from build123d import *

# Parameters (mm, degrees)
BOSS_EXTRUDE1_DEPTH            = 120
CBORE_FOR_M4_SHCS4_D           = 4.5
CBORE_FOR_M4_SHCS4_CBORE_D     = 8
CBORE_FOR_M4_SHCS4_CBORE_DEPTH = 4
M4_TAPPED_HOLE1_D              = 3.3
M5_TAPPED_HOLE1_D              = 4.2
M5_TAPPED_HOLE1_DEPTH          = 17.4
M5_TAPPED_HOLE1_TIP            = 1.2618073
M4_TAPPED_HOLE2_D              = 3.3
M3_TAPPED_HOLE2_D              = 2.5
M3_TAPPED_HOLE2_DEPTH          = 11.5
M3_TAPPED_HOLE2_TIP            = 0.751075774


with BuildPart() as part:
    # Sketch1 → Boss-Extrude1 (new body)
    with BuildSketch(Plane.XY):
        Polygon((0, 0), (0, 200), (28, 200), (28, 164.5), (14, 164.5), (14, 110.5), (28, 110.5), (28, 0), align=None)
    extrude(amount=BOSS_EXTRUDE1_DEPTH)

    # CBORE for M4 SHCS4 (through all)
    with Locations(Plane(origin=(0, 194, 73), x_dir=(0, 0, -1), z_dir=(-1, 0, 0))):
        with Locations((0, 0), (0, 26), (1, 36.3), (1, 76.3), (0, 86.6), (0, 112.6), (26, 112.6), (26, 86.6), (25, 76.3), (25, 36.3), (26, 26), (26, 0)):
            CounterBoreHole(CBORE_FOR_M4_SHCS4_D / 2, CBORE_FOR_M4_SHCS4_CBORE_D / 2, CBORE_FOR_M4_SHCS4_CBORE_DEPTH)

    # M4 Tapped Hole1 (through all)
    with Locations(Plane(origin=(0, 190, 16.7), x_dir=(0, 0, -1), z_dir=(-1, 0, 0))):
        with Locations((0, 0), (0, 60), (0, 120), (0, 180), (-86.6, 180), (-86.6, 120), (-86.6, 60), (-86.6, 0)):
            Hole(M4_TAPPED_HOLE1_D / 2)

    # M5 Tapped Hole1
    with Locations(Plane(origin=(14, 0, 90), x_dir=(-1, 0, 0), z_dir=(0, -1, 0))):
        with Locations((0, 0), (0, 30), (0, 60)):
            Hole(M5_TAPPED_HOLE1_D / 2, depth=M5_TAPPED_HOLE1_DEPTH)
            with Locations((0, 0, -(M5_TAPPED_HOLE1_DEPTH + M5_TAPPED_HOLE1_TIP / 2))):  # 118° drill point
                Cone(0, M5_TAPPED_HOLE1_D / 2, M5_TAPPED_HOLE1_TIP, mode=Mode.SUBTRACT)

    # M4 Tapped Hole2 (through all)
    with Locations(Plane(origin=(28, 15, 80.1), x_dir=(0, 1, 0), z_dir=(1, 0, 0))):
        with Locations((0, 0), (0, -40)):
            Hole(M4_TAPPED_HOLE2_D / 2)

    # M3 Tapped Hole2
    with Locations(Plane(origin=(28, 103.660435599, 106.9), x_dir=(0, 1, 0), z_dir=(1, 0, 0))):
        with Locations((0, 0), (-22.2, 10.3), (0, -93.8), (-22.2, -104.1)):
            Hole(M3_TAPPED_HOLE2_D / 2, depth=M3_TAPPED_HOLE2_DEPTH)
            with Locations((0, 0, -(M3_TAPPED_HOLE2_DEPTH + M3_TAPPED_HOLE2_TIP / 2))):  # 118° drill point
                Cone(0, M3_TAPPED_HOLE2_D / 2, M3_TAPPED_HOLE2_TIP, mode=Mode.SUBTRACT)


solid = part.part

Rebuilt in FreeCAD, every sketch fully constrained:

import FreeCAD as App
import Part
import Sketcher
from FreeCAD import Vector


def add_polygon(sketch, points):
    """Adds a closed chain of lines whose ends are joined by coincident constraints."""
    first, n = sketch.GeometryCount, len(points)
    for a, b in zip(points, points[1:] + points[:1]):
        sketch.addGeometry(Part.LineSegment(App.Vector(*a, 0), App.Vector(*b, 0)), False)
    for i in range(n):
        sketch.addConstraint(Sketcher.Constraint("Coincident", first + i, 2, first + (i + 1) % n, 1))

doc = App.newDocument("Part")
params = doc.addObject("Spreadsheet::Sheet", "Params")
for row, (alias, value) in enumerate([
    ("sketch1_width", "28 mm"),
    ("sketch1_width2", "14 mm"),
    ("sketch1_height", "200 mm"),
    ("sketch1_height2", "54 mm"),
    ("sketch1_height3", "110.5 mm"),
    ("pad1_length", "120 mm"),
    ("sketch2_diameter", "4.5 mm"),
    ("hole_diameter", "4.5 mm"),
    ("hole_cbore_diameter", "8 mm"),
    ("hole_cbore_depth", "4 mm"),
    ("sketch3_diameter", "3.3 mm"),
    ("hole2_diameter", "3.3 mm"),
    ("sketch4_diameter", "4.2 mm"),
    ("hole3_diameter", "4.2 mm"),
    ("hole3_depth", "17.4 mm"),
    ("sketch5_diameter", "3.3 mm"),
    ("hole4_diameter", "3.3 mm"),
    ("sketch6_diameter", "2.5 mm"),
    ("hole5_diameter", "2.5 mm"),
    ("hole5_depth", "11.5 mm"),
], start=1):
    params.set(f"A{row}", alias)
    params.set(f"B{row}", "=" + value)
    params.setAlias(f"B{row}", alias)

body = doc.addObject("PartDesign::Body", "Body")

# Sketch on XY plane
sketch1 = body.newObject("Sketcher::SketchObject", "Sketch")
sketch1.AttachmentSupport = (doc.getObject("XY_Plane"), [""])
sketch1.MapMode = "FlatFace"
add_polygon(sketch1, [(0, 200), (0, 0), (28, 0), (28, 110), (14, 110), (14, 164), (28, 164), (28, 200)])  # lines 0-7
sketch1.addConstraint([
    Sketcher.Constraint("Vertical", 0),
    Sketcher.Constraint("Horizontal", 1),
    Sketcher.Constraint("Vertical", 2),
    Sketcher.Constraint("Horizontal", 3),
    Sketcher.Constraint("Vertical", 4),
    Sketcher.Constraint("Horizontal", 5),
    Sketcher.Constraint("Vertical", 6),
    Sketcher.Constraint("Horizontal", 7),
    Sketcher.Constraint("Coincident", 0, 2, -1, 1),
    Sketcher.Constraint("Vertical", 2, 2, 5, 2),
    Sketcher.Constraint("DistanceX", 1, 1, 1, 2, 28.0),
    Sketcher.Constraint("DistanceX", 3, 2, 3, 1, 14.0),
    Sketcher.Constraint("DistanceY", 0, 2, 0, 1, 200.0),
    Sketcher.Constraint("DistanceY", 4, 1, 4, 2, 54.0),
    Sketcher.Constraint("DistanceY", 2, 1, 2, 2, 110.5),
])
sketch1.setExpression("Constraints[18]", "Params.sketch1_width")
sketch1.setExpression("Constraints[19]", "Params.sketch1_width2")
sketch1.setExpression("Constraints[20]", "Params.sketch1_height")
sketch1.setExpression("Constraints[21]", "Params.sketch1_height2")
sketch1.setExpression("Constraints[22]", "Params.sketch1_height3")
pad1 = body.newObject("PartDesign::Pad", "Pad")
pad1.Profile = sketch1
pad1.setExpression("Length", "Params.pad1_length")

# Sketch on YZ plane
sketch2 = body.newObject("Sketcher::SketchObject", "Sketch001")
sketch2.AttachmentSupport = (doc.getObject("YZ_Plane"), [""])
sketch2.MapMode = "FlatFace"
sketch2.addGeometry([
    Part.Circle(Vector(194, 73, 0), Vector(0, 0, 1), 2.2),  # 0
    Part.Circle(Vector(168, 73, 0), Vector(0, 0, 1), 2.2),  # 1
    Part.Circle(Vector(157.7, 72, 0), Vector(0, 0, 1), 2.2),  # 2
    Part.Circle(Vector(117.7, 72, 0), Vector(0, 0, 1), 2.2),  # 3
    Part.Circle(Vector(107.4, 73, 0), Vector(0, 0, 1), 2.2),  # 4
    Part.Circle(Vector(81.4, 73, 0), Vector(0, 0, 1), 2.2),  # 5
    Part.Circle(Vector(81.4, 47, 0), Vector(0, 0, 1), 2.2),  # 6
    Part.Circle(Vector(107.4, 47, 0), Vector(0, 0, 1), 2.2),  # 7
    Part.Circle(Vector(117.7, 48, 0), Vector(0, 0, 1), 2.2),  # 8
    Part.Circle(Vector(157.7, 48, 0), Vector(0, 0, 1), 2.2),  # 9
    Part.Circle(Vector(168, 47, 0), Vector(0, 0, 1), 2.2),  # 10
    Part.Circle(Vector(194, 47, 0), Vector(0, 0, 1), 2.2),  # 11
], False)
sketch2.addConstraint([
    Sketcher.Constraint("Equal", 0, 1),
    Sketcher.Constraint("Equal", 1, 2),
    Sketcher.Constraint("Equal", 2, 3),
    Sketcher.Constraint("Equal", 3, 4),
    Sketcher.Constraint("Equal", 4, 5),
    Sketcher.Constraint("Equal", 5, 6),
    Sketcher.Constraint("Equal", 6, 7),
    Sketcher.Constraint("Equal", 7, 8),
    Sketcher.Constraint("Equal", 8, 9),
    Sketcher.Constraint("Equal", 9, 10),
    Sketcher.Constraint("Equal", 10, 11),
    Sketcher.Constraint("Horizontal", 0, 3, 1, 3),
    Sketcher.Constraint("Horizontal", 2, 3, 3, 3),
    Sketcher.Constraint("Horizontal", 1, 3, 4, 3),
    Sketcher.Constraint("Horizontal", 4, 3, 5, 3),
    Sketcher.Constraint("Horizontal", 6, 3, 7, 3),
    Sketcher.Constraint("Horizontal", 8, 3, 9, 3),
    Sketcher.Constraint("Horizontal", 7, 3, 10, 3),
    Sketcher.Constraint("Horizontal", 10, 3, 11, 3),
    Sketcher.Constraint("Vertical", 5, 3, 6, 3),
    Sketcher.Constraint("Vertical", 4, 3, 7, 3),
    Sketcher.Constraint("Vertical", 3, 3, 8, 3),
    Sketcher.Constraint("Vertical", 2, 3, 9, 3),
    Sketcher.Constraint("Vertical", 1, 3, 10, 3),
    Sketcher.Constraint("Vertical", 0, 3, 11, 3),
    Sketcher.Constraint("Diameter", 0, 4.5),
    Sketcher.Constraint("DistanceX", -1, 1, 0, 3, 194.0),
    Sketcher.Constraint("DistanceY", -1, 1, 0, 3, 73.0),
    Sketcher.Constraint("DistanceX", -1, 1, 1, 3, 168.0),
    Sketcher.Constraint("DistanceY", -1, 1, 2, 3, 72.0),
    Sketcher.Constraint("DistanceY", -1, 1, 6, 3, 47.0),
    Sketcher.Constraint("DistanceY", -1, 1, 8, 3, 48.0),
    Sketcher.Constraint("DistanceX", 3, 3, 2, 3, 40.0),
    Sketcher.Constraint("DistanceX", 5, 3, 4, 3, 26.0),
    Sketcher.Constraint("DistanceX", -1, 1, 2, 3, 157.7),
    Sketcher.Constraint("DistanceX", -1, 1, 4, 3, 107.4),
])
sketch2.setExpression("Constraints[25]", "Params.sketch2_diameter")
doc.recompute()
hole = body.newObject("PartDesign::Hole", "Hole")
hole.Profile = sketch2
hole.ThreadType = "None"
hole.setExpression("Diameter", "Params.hole_diameter")
hole.DepthType = "ThroughAll"
hole.HoleCutType = "Counterbore"
hole.setExpression("HoleCutDiameter", "Params.hole_cbore_diameter")
hole.setExpression("HoleCutDepth", "Params.hole_cbore_depth")
hole.Reversed = True

# Sketch on YZ plane
sketch3 = body.newObject("Sketcher::SketchObject", "Sketch002")
sketch3.AttachmentSupport = (doc.getObject("YZ_Plane"), [""])
sketch3.MapMode = "FlatFace"
sketch3.addGeometry([
    Part.Circle(Vector(190, 16.7, 0), Vector(0, 0, 1), 1.6),  # 0
    Part.Circle(Vector(130, 16.7, 0), Vector(0, 0, 1), 1.6),  # 1
    Part.Circle(Vector(70, 16.7, 0), Vector(0, 0, 1), 1.6),  # 2
    Part.Circle(Vector(10, 16.7, 0), Vector(0, 0, 1), 1.6),  # 3
    Part.Circle(Vector(10, 103.3, 0), Vector(0, 0, 1), 1.6),  # 4
    Part.Circle(Vector(70, 103.3, 0), Vector(0, 0, 1), 1.6),  # 5
    Part.Circle(Vector(130, 103.3, 0), Vector(0, 0, 1), 1.6),  # 6
    Part.Circle(Vector(190, 103.3, 0), Vector(0, 0, 1), 1.6),  # 7
], False)
sketch3.addConstraint([
    Sketcher.Constraint("Equal", 0, 1),
    Sketcher.Constraint("Equal", 1, 2),
    Sketcher.Constraint("Equal", 2, 3),
    Sketcher.Constraint("Equal", 3, 4),
    Sketcher.Constraint("Equal", 4, 5),
    Sketcher.Constraint("Equal", 5, 6),
    Sketcher.Constraint("Equal", 6, 7),
    Sketcher.Constraint("Horizontal", 0, 3, 1, 3),
    Sketcher.Constraint("Horizontal", 1, 3, 2, 3),
    Sketcher.Constraint("Horizontal", 2, 3, 3, 3),
    Sketcher.Constraint("Horizontal", 4, 3, 5, 3),
    Sketcher.Constraint("Horizontal", 5, 3, 6, 3),
    Sketcher.Constraint("Horizontal", 6, 3, 7, 3),
    Sketcher.Constraint("Vertical", 3, 3, 4, 3),
    Sketcher.Constraint("Vertical", 2, 3, 5, 3),
    Sketcher.Constraint("Vertical", 1, 3, 6, 3),
    Sketcher.Constraint("Vertical", 0, 3, 7, 3),
    Sketcher.Constraint("Diameter", 0, 3.3),
    Sketcher.Constraint("DistanceX", -1, 1, 0, 3, 190.0),
    Sketcher.Constraint("DistanceX", -1, 1, 1, 3, 130.0),
    Sketcher.Constraint("DistanceX", -1, 1, 2, 3, 70.0),
    Sketcher.Constraint("DistanceX", -1, 1, 3, 3, 10.0),
    Sketcher.Constraint("DistanceY", -1, 1, 0, 3, 16.7),
    Sketcher.Constraint("DistanceY", -1, 1, 4, 3, 103.3),
])
sketch3.setExpression("Constraints[17]", "Params.sketch3_diameter")
doc.recompute()
hole2 = body.newObject("PartDesign::Hole", "Hole001")
hole2.Profile = sketch3
hole2.ThreadType = "None"
hole2.setExpression("Diameter", "Params.hole2_diameter")
hole2.DepthType = "ThroughAll"
hole2.Reversed = True

# Sketch on XZ plane
sketch4 = body.newObject("Sketcher::SketchObject", "Sketch003")
sketch4.AttachmentSupport = (doc.getObject("XZ_Plane"), [""])
sketch4.MapMode = "FlatFace"
sketch4.addGeometry([
    Part.Circle(Vector(14, 90, 0), Vector(0, 0, 1), 2.1),
    Part.Circle(Vector(14, 60, 0), Vector(0, 0, 1), 2.1),
    Part.Circle(Vector(14, 30, 0), Vector(0, 0, 1), 2.1),
], False)
sketch4.addConstraint([
    Sketcher.Constraint("Equal", 0, 1),
    Sketcher.Constraint("Equal", 1, 2),
    Sketcher.Constraint("Vertical", 0, 3, 1, 3),
    Sketcher.Constraint("Vertical", 1, 3, 2, 3),
    Sketcher.Constraint("Diameter", 0, 4.2),
    Sketcher.Constraint("DistanceX", -1, 1, 0, 3, 14.0),
    Sketcher.Constraint("DistanceY", -1, 1, 0, 3, 90.0),
    Sketcher.Constraint("DistanceY", -1, 1, 1, 3, 60.0),
    Sketcher.Constraint("DistanceY", -1, 1, 2, 3, 30.0),
])
sketch4.setExpression("Constraints[4]", "Params.sketch4_diameter")
doc.recompute()
hole3 = body.newObject("PartDesign::Hole", "Hole002")
hole3.Profile = sketch4
hole3.ThreadType = "None"
hole3.setExpression("Diameter", "Params.hole3_diameter")
hole3.DepthType = "Dimension"
hole3.setExpression("Depth", "Params.hole3_depth")
hole3.DrillPoint = "Angled"
hole3.DrillPointAngle = 118

# Sketch on YZ plane
sketch5 = body.newObject("Sketcher::SketchObject", "Sketch004")
sketch5.AttachmentSupport = (doc.getObject("YZ_Plane"), [""])
sketch5.MapMode = "FlatFace"
sketch5.AttachmentOffset = App.Placement(Vector(0, 0, 28), App.Rotation())
sketch5.addGeometry([
    Part.Circle(Vector(15, 80.1, 0), Vector(0, 0, 1), 1.6),
    Part.Circle(Vector(15, 40.1, 0), Vector(0, 0, 1), 1.6),
], False)
sketch5.addConstraint([
    Sketcher.Constraint("Equal", 0, 1),
    Sketcher.Constraint("Vertical", 0, 3, 1, 3),
    Sketcher.Constraint("Diameter", 0, 3.3),
    Sketcher.Constraint("DistanceX", -1, 1, 0, 3, 15.0),
    Sketcher.Constraint("DistanceY", 1, 3, 0, 3, 40.0),
    Sketcher.Constraint("DistanceY", -1, 1, 0, 3, 80.1),
])
sketch5.setExpression("Constraints[2]", "Params.sketch5_diameter")
doc.recompute()
hole4 = body.newObject("PartDesign::Hole", "Hole003")
hole4.Profile = sketch5
hole4.ThreadType = "None"
hole4.setExpression("Diameter", "Params.hole4_diameter")
hole4.DepthType = "ThroughAll"

# Sketch on YZ plane
sketch6 = body.newObject("Sketcher::SketchObject", "Sketch005")
sketch6.AttachmentSupport = (doc.getObject("YZ_Plane"), [""])
sketch6.MapMode = "FlatFace"
sketch6.AttachmentOffset = App.Placement(Vector(0, 0, 28), App.Rotation())
sketch6.addGeometry([
    Part.Circle(Vector(103.7, 106.9, 0), Vector(0, 0, 1), 1.2),
    Part.Circle(Vector(81.5, 117.2, 0), Vector(0, 0, 1), 1.2),
    Part.Circle(Vector(103.7, 13.1, 0), Vector(0, 0, 1), 1.2),
    Part.Circle(Vector(81.5, 2.8, 0), Vector(0, 0, 1), 1.2),
], False)
sketch6.addConstraint([
    Sketcher.Constraint("Equal", 0, 1),
    Sketcher.Constraint("Equal", 1, 2),
    Sketcher.Constraint("Equal", 2, 3),
    Sketcher.Constraint("Vertical", 0, 3, 2, 3),
    Sketcher.Constraint("Vertical", 1, 3, 3, 3),
    Sketcher.Constraint("Diameter", 0, 2.5),
    Sketcher.Constraint("DistanceY", -1, 1, 0, 3, 106.9),
    Sketcher.Constraint("DistanceY", -1, 1, 1, 3, 117.2),
    Sketcher.Constraint("DistanceY", -1, 1, 2, 3, 13.1),
    Sketcher.Constraint("DistanceY", -1, 1, 3, 3, 2.8),
    Sketcher.Constraint("DistanceX", 1, 3, 0, 3, 22.2),
    Sketcher.Constraint("DistanceX", -1, 1, 0, 3, 103.660436),
])
sketch6.setExpression("Constraints[5]", "Params.sketch6_diameter")
doc.recompute()
hole5 = body.newObject("PartDesign::Hole", "Hole004")
hole5.Profile = sketch6
hole5.ThreadType = "None"
hole5.setExpression("Diameter", "Params.hole5_diameter")
hole5.DepthType = "Dimension"
hole5.setExpression("Depth", "Params.hole5_depth")
hole5.DrillPoint = "Angled"
hole5.DrillPointAngle = 118

doc.recompute()
